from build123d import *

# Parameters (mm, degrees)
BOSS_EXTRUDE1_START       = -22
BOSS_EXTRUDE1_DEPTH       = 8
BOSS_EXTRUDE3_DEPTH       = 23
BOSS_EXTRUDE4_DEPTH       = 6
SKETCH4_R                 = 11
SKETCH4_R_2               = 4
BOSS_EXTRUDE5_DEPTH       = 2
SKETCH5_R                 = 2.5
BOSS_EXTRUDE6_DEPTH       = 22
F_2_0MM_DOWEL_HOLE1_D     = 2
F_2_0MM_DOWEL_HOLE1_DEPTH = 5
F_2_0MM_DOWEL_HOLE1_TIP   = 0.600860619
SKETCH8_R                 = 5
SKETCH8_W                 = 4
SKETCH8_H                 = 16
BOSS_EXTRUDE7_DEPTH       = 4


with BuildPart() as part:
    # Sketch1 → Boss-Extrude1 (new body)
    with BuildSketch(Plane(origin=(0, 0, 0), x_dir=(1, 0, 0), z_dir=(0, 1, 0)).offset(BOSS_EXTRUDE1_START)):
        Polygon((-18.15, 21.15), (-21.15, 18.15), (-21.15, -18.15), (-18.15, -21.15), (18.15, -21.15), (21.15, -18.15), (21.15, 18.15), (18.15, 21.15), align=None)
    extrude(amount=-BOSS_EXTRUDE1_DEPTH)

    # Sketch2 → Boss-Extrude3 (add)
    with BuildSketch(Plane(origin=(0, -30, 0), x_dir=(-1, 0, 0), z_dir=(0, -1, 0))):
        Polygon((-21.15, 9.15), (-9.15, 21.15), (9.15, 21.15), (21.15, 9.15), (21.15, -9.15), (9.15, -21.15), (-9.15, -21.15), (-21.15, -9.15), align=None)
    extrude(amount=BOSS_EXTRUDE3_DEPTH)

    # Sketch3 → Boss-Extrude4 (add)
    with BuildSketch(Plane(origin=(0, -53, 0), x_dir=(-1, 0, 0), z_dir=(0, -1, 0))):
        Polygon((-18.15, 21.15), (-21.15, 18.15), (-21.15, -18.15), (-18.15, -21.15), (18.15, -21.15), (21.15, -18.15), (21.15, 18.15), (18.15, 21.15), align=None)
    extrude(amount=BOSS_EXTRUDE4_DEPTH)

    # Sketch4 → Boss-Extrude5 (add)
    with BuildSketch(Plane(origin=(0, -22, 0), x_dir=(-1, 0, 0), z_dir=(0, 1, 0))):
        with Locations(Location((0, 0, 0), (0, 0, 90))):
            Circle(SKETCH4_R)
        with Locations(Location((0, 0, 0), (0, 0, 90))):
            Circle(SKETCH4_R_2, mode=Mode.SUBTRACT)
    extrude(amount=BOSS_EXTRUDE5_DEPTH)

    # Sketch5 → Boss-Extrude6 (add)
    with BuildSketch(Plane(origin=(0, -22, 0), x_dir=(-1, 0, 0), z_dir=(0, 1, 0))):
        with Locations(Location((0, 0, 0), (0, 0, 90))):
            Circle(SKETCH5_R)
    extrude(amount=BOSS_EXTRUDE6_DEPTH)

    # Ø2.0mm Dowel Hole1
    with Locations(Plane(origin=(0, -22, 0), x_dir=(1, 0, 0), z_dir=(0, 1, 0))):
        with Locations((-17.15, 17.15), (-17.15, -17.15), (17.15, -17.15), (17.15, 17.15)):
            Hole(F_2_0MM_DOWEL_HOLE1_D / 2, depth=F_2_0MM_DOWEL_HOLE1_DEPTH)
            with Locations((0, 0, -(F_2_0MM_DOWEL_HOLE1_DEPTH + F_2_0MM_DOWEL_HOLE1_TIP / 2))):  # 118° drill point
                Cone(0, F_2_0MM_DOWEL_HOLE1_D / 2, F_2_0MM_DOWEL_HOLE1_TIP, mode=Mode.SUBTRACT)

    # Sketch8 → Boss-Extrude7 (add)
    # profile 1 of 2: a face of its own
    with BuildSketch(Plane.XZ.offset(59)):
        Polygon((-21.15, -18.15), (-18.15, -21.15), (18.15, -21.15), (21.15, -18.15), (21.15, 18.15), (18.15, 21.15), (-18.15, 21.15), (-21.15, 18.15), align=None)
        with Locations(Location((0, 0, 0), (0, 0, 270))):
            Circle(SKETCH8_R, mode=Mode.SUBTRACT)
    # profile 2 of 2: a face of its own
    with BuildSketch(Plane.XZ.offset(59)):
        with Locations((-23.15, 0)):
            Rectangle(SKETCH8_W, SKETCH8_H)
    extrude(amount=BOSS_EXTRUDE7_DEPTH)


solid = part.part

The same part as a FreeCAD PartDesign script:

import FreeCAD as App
import Part
import Sketcher
Q = App.Units.Quantity

doc = App.newDocument("Part")
body = doc.addObject("PartDesign::Body", "Body")

sketch1 = doc.addObject("Sketcher::SketchObject", "Sketch")
body.addObject(sketch1)
sketch1.AttachmentSupport = (doc.XZ_Plane, [""])
sketch1.MapMode = "FlatFace"
sketch1.AttachmentOffset = App.Placement(App.Vector(0, 0, 22), App.Rotation())
sketch1.addGeometry([
    Part.LineSegment(App.Vector(-18.15, -21.15, 0), App.Vector(-21.15, -18.15, 0)),
    Part.LineSegment(App.Vector(-21.15, -18.15, 0), App.Vector(-21.15, 18.15, 0)),
    Part.LineSegment(App.Vector(-21.15, 18.15, 0), App.Vector(-18.15, 21.15, 0)),
    Part.LineSegment(App.Vector(-18.15, 21.15, 0), App.Vector(18.15, 21.15, 0)),
    Part.LineSegment(App.Vector(18.15, 21.15, 0), App.Vector(21.15, 18.15, 0)),
    Part.LineSegment(App.Vector(21.15, 18.15, 0), App.Vector(21.15, -18.15, 0)),
    Part.LineSegment(App.Vector(21.15, -18.15, 0), App.Vector(18.15, -21.15, 0)),
    Part.LineSegment(App.Vector(18.15, -21.15, 0), App.Vector(-18.15, -21.15, 0)),
], False)
sketch1.addConstraint([
    Sketcher.Constraint("Coincident", 0, 2, 1, 1),
    Sketcher.Constraint("Coincident", 1, 2, 2, 1),
    Sketcher.Constraint("Coincident", 2, 2, 3, 1),
    Sketcher.Constraint("Coincident", 3, 2, 4, 1),
    Sketcher.Constraint("Coincident", 4, 2, 5, 1),
    Sketcher.Constraint("Coincident", 5, 2, 6, 1),
    Sketcher.Constraint("Coincident", 6, 2, 7, 1),
    Sketcher.Constraint("Coincident", 7, 2, 0, 1),
    Sketcher.Constraint("Vertical", 1),
    Sketcher.Constraint("Horizontal", 3),
    Sketcher.Constraint("Vertical", 5),
    Sketcher.Constraint("Horizontal", 7),
    Sketcher.Constraint("Symmetric", 0, 2, 4, 2, -1, 1),
    Sketcher.Constraint("Symmetric", 2, 2, 6, 2, -1, 1),
    Sketcher.Constraint("Perpendicular", 0, 2),
    Sketcher.Constraint("Perpendicular", 2, 4),
    Sketcher.Constraint("Perpendicular", 4, 6),
    Sketcher.Constraint("Horizontal", 1, 2, 4, 2),
    Sketcher.Constraint("Vertical", 3, 2, 6, 2),
    Sketcher.Constraint("Equal", 7, 1),
    Sketcher.Constraint("DistanceX", 3, 1, 3, 2, Q("36.3 mm")),
    Sketcher.Constraint("DistanceX", 1, 2, 2, 2, Q("3 mm")),
])
pad1 = doc.addObject("PartDesign::Pad", "Pad")
body.addObject(pad1)
pad1.Profile = sketch1
pad1.Length = 8

sketch2 = doc.addObject("Sketcher::SketchObject", "Sketch001")
body.addObject(sketch2)
sketch2.AttachmentSupport = (doc.XZ_Plane, [""])
sketch2.MapMode = "FlatFace"
sketch2.AttachmentOffset = App.Placement(App.Vector(0, 0, 30), App.Rotation())
sketch2.addGeometry([
    Part.LineSegment(App.Vector(9.15, -21.15, 0), App.Vector(21.15, -9.15, 0)),
    Part.LineSegment(App.Vector(21.15, -9.15, 0), App.Vector(21.15, 9.15, 0)),
    Part.LineSegment(App.Vector(21.15, 9.15, 0), App.Vector(9.15, 21.15, 0)),
    Part.LineSegment(App.Vector(9.15, 21.15, 0), App.Vector(-9.15, 21.15, 0)),
    Part.LineSegment(App.Vector(-9.15, 21.15, 0), App.Vector(-21.15, 9.15, 0)),
    Part.LineSegment(App.Vector(-21.15, 9.15, 0), App.Vector(-21.15, -9.15, 0)),
    Part.LineSegment(App.Vector(-21.15, -9.15, 0), App.Vector(-9.15, -21.15, 0)),
    Part.LineSegment(App.Vector(-9.15, -21.15, 0), App.Vector(9.15, -21.15, 0)),
], False)
sketch2.addConstraint([
    Sketcher.Constraint("Coincident", 0, 2, 1, 1),
    Sketcher.Constraint("Coincident", 1, 2, 2, 1),
    Sketcher.Constraint("Coincident", 2, 2, 3, 1),
    Sketcher.Constraint("Coincident", 3, 2, 4, 1),
    Sketcher.Constraint("Coincident", 4, 2, 5, 1),
    Sketcher.Constraint("Coincident", 5, 2, 6, 1),
    Sketcher.Constraint("Coincident", 6, 2, 7, 1),
    Sketcher.Constraint("Coincident", 7, 2, 0, 1),
    Sketcher.Constraint("Vertical", 1),
    Sketcher.Constraint("Horizontal", 3),
    Sketcher.Constraint("Vertical", 5),
    Sketcher.Constraint("Horizontal", 7),
    Sketcher.Constraint("Symmetric", 0, 2, 4, 2, -1, 1),
    Sketcher.Constraint("Symmetric", 2, 2, 6, 2, -1, 1),
    Sketcher.Constraint("Perpendicular", 0, 2),
    Sketcher.Constraint("Perpendicular", 2, 4),
    Sketcher.Constraint("Perpendicular", 4, 6),
    Sketcher.Constraint("Horizontal", 1, 2, 4, 2),
    Sketcher.Constraint("Vertical", 3, 2, 6, 2),
    Sketcher.Constraint("Equal", 7, 1),
    Sketcher.Constraint("DistanceX", 3, 2, 3, 1, Q("18.3 mm")),
    Sketcher.Constraint("DistanceX", 2, 2, 1, 2, Q("12 mm")),
])
pad2 = doc.addObject("PartDesign::Pad", "Pad001")
body.addObject(pad2)
pad2.Profile = sketch2
pad2.Length = 23

sketch3 = doc.addObject("Sketcher::SketchObject", "Sketch002")
body.addObject(sketch3)
sketch3.AttachmentSupport = (doc.XZ_Plane, [""])
sketch3.MapMode = "FlatFace"
sketch3.AttachmentOffset = App.Placement(App.Vector(0, 0, 53), App.Rotation())
sketch3.addGeometry([
    Part.LineSegment(App.Vector(18.15, -21.15, 0), App.Vector(21.15, -18.15, 0)),
    Part.LineSegment(App.Vector(21.15, -18.15, 0), App.Vector(21.15, 18.15, 0)),
    Part.LineSegment(App.Vector(21.15, 18.15, 0), App.Vector(18.15, 21.15, 0)),
    Part.LineSegment(App.Vector(18.15, 21.15, 0), App.Vector(-18.15, 21.15, 0)),
    Part.LineSegment(App.Vector(-18.15, 21.15, 0), App.Vector(-21.15, 18.15, 0)),
    Part.LineSegment(App.Vector(-21.15, 18.15, 0), App.Vector(-21.15, -18.15, 0)),
    Part.LineSegment(App.Vector(-21.15, -18.15, 0), App.Vector(-18.15, -21.15, 0)),
    Part.LineSegment(App.Vector(-18.15, -21.15, 0), App.Vector(18.15, -21.15, 0)),
], False)
sketch3.addConstraint([
    Sketcher.Constraint("Coincident", 0, 2, 1, 1),
    Sketcher.Constraint("Coincident", 1, 2, 2, 1),
    Sketcher.Constraint("Coincident", 2, 2, 3, 1),
    Sketcher.Constraint("Coincident", 3, 2, 4, 1),
    Sketcher.Constraint("Coincident", 4, 2, 5, 1),
    Sketcher.Constraint("Coincident", 5, 2, 6, 1),
    Sketcher.Constraint("Coincident", 6, 2, 7, 1),
    Sketcher.Constraint("Coincident", 7, 2, 0, 1),
    Sketcher.Constraint("Vertical", 1),
    Sketcher.Constraint("Horizontal", 3),
    Sketcher.Constraint("Vertical", 5),
    Sketcher.Constraint("Horizontal", 7),
    Sketcher.Constraint("Symmetric", 0, 2, 4, 2, -1, 1),
    Sketcher.Constraint("Symmetric", 2, 2, 6, 2, -1, 1),
    Sketcher.Constraint("Perpendicular", 0, 2),
    Sketcher.Constraint("Perpendicular", 2, 4),
    Sketcher.Constraint("Perpendicular", 4, 6),
    Sketcher.Constraint("Horizontal", 1, 2, 4, 2),
    Sketcher.Constraint("Vertical", 3, 2, 6, 2),
    Sketcher.Constraint("Equal", 7, 1),
    Sketcher.Constraint("DistanceX", 3, 2, 3, 1, Q("36.3 mm")),
    Sketcher.Constraint("DistanceX", 2, 2, 1, 2, Q("3 mm")),
])
pad3 = doc.addObject("PartDesign::Pad", "Pad002")
body.addObject(pad3)
pad3.Profile = sketch3
pad3.Length = 6

sketch4 = doc.addObject("Sketcher::SketchObject", "Sketch003")
body.addObject(sketch4)
sketch4.AttachmentSupport = (doc.XZ_Plane, [""])
sketch4.MapMode = "FlatFace"
sketch4.AttachmentOffset = App.Placement(App.Vector(0, 0, 22), App.Rotation())
sketch4.addGeometry([
    Part.Circle(App.Vector(0, 0, 0), App.Vector(0, 0, 1), 11),
    Part.Circle(App.Vector(0, 0, 0), App.Vector(0, 0, 1), 4),
], False)
sketch4.addConstraint([
    Sketcher.Constraint("Coincident", 0, 3, -1, 1),
    Sketcher.Constraint("Coincident", 1, 3, -1, 1),
    Sketcher.Constraint("Diameter", 0, Q("22 mm")),
    Sketcher.Constraint("Diameter", 1, Q("8 mm")),
])
pad4 = doc.addObject("PartDesign::Pad", "Pad003")
body.addObject(pad4)
pad4.Profile = sketch4
pad4.Length = 2
pad4.Reversed = True

sketch5 = doc.addObject("Sketcher::SketchObject", "Sketch004")
body.addObject(sketch5)
sketch5.AttachmentSupport = (doc.XZ_Plane, [""])
sketch5.MapMode = "FlatFace"
sketch5.AttachmentOffset = App.Placement(App.Vector(0, 0, 22), App.Rotation())
sketch5.addGeometry(Part.Circle(App.Vector(0, 0, 0), App.Vector(0, 0, 1), 2.5), False)
sketch5.addConstraint([
    Sketcher.Constraint("Coincident", 0, 3, -1, 1),
    Sketcher.Constraint("Diameter", 0, Q("5 mm")),
])
pad5 = doc.addObject("PartDesign::Pad", "Pad004")
body.addObject(pad5)
pad5.Profile = sketch5
pad5.Length = 22
pad5.Reversed = True

sketch6 = doc.addObject("Sketcher::SketchObject", "Sketch005")
body.addObject(sketch6)
sketch6.AttachmentSupport = (doc.XZ_Plane, [""])
sketch6.MapMode = "FlatFace"
sketch6.AttachmentOffset = App.Placement(App.Vector(0, 0, 22), App.Rotation())
sketch6.addGeometry([
    Part.Circle(App.Vector(-17.15, -17.15, 0), App.Vector(0, 0, 1), 1),
    Part.Circle(App.Vector(-17.15, 17.15, 0), App.Vector(0, 0, 1), 1),
    Part.Circle(App.Vector(17.15, 17.15, 0), App.Vector(0, 0, 1), 1),
    Part.Circle(App.Vector(17.15, -17.15, 0), App.Vector(0, 0, 1), 1),
], False)
sketch6.addConstraint([
    Sketcher.Constraint("Equal", 0, 1),
    Sketcher.Constraint("Equal", 1, 2),
    Sketcher.Constraint("Equal", 2, 3),
    Sketcher.Constraint("Symmetric", 0, 3, 2, 3, -1, 1),
    Sketcher.Constraint("Symmetric", 1, 3, 3, 3, -1, 1),
    Sketcher.Constraint("Symmetric", 1, 3, 2, 3, -2),
    Sketcher.Constraint("Diameter", 0, Q("2 mm")),
    Sketcher.Constraint("DistanceY", 0, 3, 1, 3, Q("34.3 mm")),
    Sketcher.Constraint("DistanceX", 1, 3, 2, 3, Q("34.3 mm")),
])
doc.recompute()
hole = doc.addObject("PartDesign::Hole", "Hole")
body.addObject(hole)
hole.Profile = sketch6
hole.ThreadType = "None"
hole.Diameter = 2
hole.DepthType = "Dimension"
hole.Depth = 5
hole.DrillPoint = "Angled"
hole.DrillPointAngle = 118
hole.Reversed = True

sketch7 = doc.addObject("Sketcher::SketchObject", "Sketch006")
body.addObject(sketch7)
sketch7.AttachmentSupport = (doc.XZ_Plane, [""])
sketch7.MapMode = "FlatFace"
sketch7.AttachmentOffset = App.Placement(App.Vector(0, 0, 59), App.Rotation())
sketch7.addGeometry([
    Part.LineSegment(App.Vector(-21.15, -18.15, 0), App.Vector(-18.15, -21.15, 0)),
    Part.LineSegment(App.Vector(-18.15, -21.15, 0), App.Vector(18.15, -21.15, 0)),
    Part.LineSegment(App.Vector(18.15, -21.15, 0), App.Vector(21.15, -18.15, 0)),
    Part.LineSegment(App.Vector(21.15, -18.15, 0), App.Vector(21.15, 18.15, 0)),
    Part.LineSegment(App.Vector(21.15, 18.15, 0), App.Vector(18.15, 21.15, 0)),
    Part.LineSegment(App.Vector(18.15, 21.15, 0), App.Vector(-18.15, 21.15, 0)),
    Part.LineSegment(App.Vector(-18.15, 21.15, 0), App.Vector(-21.15, 18.15, 0)),
    Part.LineSegment(App.Vector(-21.15, 18.15, 0), App.Vector(-21.15, 8, 0)),
    Part.LineSegment(App.Vector(-21.15, 8, 0), App.Vector(-25.15, 8, 0)),
    Part.LineSegment(App.Vector(-25.15, 8, 0), App.Vector(-25.15, -8, 0)),
    Part.LineSegment(App.Vector(-25.15, -8, 0), App.Vector(-21.15, -8, 0)),
    Part.LineSegment(App.Vector(-21.15, -8, 0), App.Vector(-21.15, -18.15, 0)),
    Part.Circle(App.Vector(0, 0, 0), App.Vector(0, 0, 1), 5),
], False)
sketch7.addConstraint([
    Sketcher.Constraint("Coincident", 0, 2, 1, 1),
    Sketcher.Constraint("Coincident", 1, 2, 2, 1),
    Sketcher.Constraint("Coincident", 2, 2, 3, 1),
    Sketcher.Constraint("Coincident", 3, 2, 4, 1),
    Sketcher.Constraint("Coincident", 4, 2, 5, 1),
    Sketcher.Constraint("Coincident", 5, 2, 6, 1),
    Sketcher.Constraint("Coincident", 6, 2, 7, 1),
    Sketcher.Constraint("Coincident", 7, 2, 8, 1),
    Sketcher.Constraint("Coincident", 8, 2, 9, 1),
    Sketcher.Constraint("Coincident", 9, 2, 10, 1),
    Sketcher.Constraint("Coincident", 10, 2, 11, 1),
    Sketcher.Constraint("Coincident", 11, 2, 0, 1),
    Sketcher.Constraint("Horizontal", 1),
    Sketcher.Constraint("Vertical", 3),
    Sketcher.Constraint("Horizontal", 5),
    Sketcher.Constraint("Vertical", 7),
    Sketcher.Constraint("Horizontal", 8),
    Sketcher.Constraint("Vertical", 9),
    Sketcher.Constraint("Horizontal", 10),
    Sketcher.Constraint("Vertical", 11),
    Sketcher.Constraint("Coincident", 12, 3, -1, 1),
    Sketcher.Constraint("Symmetric", 0, 2, 4, 2, -1, 1),
    Sketcher.Constraint("Symmetric", 2, 2, 6, 2, -1, 1),
    Sketcher.Constraint("Symmetric", 3, 2, 11, 2, -1, 1),
    Sketcher.Constraint("Perpendicular", 0, 2),
    Sketcher.Constraint("Perpendicular", 4, 6),
    Sketcher.Constraint("Horizontal", 3, 2, 6, 2),
    Sketcher.Constraint("Vertical", 1, 2, 4, 2),
    Sketcher.Constraint("Equal", 5, 3),
    Sketcher.Constraint("Equal", 7, 11),
    Sketcher.Constraint("Diameter", 12, Q("10 mm")),
    Sketcher.Constraint("DistanceX", 8, 2, 8, 1, Q("4 mm")),
    Sketcher.Constraint("DistanceY", 9, 2, 9, 1, Q("16 mm")),
    Sketcher.Constraint("DistanceX", 1, 1, 1, 2, Q("36.3 mm")),
    Sketcher.Constraint("DistanceX", 1, 2, 2, 2, Q("3 mm")),
])
pad6 = doc.addObject("PartDesign::Pad", "Pad005")
body.addObject(pad6)
pad6.Profile = sketch7
pad6.Length = 4

doc.recompute()
